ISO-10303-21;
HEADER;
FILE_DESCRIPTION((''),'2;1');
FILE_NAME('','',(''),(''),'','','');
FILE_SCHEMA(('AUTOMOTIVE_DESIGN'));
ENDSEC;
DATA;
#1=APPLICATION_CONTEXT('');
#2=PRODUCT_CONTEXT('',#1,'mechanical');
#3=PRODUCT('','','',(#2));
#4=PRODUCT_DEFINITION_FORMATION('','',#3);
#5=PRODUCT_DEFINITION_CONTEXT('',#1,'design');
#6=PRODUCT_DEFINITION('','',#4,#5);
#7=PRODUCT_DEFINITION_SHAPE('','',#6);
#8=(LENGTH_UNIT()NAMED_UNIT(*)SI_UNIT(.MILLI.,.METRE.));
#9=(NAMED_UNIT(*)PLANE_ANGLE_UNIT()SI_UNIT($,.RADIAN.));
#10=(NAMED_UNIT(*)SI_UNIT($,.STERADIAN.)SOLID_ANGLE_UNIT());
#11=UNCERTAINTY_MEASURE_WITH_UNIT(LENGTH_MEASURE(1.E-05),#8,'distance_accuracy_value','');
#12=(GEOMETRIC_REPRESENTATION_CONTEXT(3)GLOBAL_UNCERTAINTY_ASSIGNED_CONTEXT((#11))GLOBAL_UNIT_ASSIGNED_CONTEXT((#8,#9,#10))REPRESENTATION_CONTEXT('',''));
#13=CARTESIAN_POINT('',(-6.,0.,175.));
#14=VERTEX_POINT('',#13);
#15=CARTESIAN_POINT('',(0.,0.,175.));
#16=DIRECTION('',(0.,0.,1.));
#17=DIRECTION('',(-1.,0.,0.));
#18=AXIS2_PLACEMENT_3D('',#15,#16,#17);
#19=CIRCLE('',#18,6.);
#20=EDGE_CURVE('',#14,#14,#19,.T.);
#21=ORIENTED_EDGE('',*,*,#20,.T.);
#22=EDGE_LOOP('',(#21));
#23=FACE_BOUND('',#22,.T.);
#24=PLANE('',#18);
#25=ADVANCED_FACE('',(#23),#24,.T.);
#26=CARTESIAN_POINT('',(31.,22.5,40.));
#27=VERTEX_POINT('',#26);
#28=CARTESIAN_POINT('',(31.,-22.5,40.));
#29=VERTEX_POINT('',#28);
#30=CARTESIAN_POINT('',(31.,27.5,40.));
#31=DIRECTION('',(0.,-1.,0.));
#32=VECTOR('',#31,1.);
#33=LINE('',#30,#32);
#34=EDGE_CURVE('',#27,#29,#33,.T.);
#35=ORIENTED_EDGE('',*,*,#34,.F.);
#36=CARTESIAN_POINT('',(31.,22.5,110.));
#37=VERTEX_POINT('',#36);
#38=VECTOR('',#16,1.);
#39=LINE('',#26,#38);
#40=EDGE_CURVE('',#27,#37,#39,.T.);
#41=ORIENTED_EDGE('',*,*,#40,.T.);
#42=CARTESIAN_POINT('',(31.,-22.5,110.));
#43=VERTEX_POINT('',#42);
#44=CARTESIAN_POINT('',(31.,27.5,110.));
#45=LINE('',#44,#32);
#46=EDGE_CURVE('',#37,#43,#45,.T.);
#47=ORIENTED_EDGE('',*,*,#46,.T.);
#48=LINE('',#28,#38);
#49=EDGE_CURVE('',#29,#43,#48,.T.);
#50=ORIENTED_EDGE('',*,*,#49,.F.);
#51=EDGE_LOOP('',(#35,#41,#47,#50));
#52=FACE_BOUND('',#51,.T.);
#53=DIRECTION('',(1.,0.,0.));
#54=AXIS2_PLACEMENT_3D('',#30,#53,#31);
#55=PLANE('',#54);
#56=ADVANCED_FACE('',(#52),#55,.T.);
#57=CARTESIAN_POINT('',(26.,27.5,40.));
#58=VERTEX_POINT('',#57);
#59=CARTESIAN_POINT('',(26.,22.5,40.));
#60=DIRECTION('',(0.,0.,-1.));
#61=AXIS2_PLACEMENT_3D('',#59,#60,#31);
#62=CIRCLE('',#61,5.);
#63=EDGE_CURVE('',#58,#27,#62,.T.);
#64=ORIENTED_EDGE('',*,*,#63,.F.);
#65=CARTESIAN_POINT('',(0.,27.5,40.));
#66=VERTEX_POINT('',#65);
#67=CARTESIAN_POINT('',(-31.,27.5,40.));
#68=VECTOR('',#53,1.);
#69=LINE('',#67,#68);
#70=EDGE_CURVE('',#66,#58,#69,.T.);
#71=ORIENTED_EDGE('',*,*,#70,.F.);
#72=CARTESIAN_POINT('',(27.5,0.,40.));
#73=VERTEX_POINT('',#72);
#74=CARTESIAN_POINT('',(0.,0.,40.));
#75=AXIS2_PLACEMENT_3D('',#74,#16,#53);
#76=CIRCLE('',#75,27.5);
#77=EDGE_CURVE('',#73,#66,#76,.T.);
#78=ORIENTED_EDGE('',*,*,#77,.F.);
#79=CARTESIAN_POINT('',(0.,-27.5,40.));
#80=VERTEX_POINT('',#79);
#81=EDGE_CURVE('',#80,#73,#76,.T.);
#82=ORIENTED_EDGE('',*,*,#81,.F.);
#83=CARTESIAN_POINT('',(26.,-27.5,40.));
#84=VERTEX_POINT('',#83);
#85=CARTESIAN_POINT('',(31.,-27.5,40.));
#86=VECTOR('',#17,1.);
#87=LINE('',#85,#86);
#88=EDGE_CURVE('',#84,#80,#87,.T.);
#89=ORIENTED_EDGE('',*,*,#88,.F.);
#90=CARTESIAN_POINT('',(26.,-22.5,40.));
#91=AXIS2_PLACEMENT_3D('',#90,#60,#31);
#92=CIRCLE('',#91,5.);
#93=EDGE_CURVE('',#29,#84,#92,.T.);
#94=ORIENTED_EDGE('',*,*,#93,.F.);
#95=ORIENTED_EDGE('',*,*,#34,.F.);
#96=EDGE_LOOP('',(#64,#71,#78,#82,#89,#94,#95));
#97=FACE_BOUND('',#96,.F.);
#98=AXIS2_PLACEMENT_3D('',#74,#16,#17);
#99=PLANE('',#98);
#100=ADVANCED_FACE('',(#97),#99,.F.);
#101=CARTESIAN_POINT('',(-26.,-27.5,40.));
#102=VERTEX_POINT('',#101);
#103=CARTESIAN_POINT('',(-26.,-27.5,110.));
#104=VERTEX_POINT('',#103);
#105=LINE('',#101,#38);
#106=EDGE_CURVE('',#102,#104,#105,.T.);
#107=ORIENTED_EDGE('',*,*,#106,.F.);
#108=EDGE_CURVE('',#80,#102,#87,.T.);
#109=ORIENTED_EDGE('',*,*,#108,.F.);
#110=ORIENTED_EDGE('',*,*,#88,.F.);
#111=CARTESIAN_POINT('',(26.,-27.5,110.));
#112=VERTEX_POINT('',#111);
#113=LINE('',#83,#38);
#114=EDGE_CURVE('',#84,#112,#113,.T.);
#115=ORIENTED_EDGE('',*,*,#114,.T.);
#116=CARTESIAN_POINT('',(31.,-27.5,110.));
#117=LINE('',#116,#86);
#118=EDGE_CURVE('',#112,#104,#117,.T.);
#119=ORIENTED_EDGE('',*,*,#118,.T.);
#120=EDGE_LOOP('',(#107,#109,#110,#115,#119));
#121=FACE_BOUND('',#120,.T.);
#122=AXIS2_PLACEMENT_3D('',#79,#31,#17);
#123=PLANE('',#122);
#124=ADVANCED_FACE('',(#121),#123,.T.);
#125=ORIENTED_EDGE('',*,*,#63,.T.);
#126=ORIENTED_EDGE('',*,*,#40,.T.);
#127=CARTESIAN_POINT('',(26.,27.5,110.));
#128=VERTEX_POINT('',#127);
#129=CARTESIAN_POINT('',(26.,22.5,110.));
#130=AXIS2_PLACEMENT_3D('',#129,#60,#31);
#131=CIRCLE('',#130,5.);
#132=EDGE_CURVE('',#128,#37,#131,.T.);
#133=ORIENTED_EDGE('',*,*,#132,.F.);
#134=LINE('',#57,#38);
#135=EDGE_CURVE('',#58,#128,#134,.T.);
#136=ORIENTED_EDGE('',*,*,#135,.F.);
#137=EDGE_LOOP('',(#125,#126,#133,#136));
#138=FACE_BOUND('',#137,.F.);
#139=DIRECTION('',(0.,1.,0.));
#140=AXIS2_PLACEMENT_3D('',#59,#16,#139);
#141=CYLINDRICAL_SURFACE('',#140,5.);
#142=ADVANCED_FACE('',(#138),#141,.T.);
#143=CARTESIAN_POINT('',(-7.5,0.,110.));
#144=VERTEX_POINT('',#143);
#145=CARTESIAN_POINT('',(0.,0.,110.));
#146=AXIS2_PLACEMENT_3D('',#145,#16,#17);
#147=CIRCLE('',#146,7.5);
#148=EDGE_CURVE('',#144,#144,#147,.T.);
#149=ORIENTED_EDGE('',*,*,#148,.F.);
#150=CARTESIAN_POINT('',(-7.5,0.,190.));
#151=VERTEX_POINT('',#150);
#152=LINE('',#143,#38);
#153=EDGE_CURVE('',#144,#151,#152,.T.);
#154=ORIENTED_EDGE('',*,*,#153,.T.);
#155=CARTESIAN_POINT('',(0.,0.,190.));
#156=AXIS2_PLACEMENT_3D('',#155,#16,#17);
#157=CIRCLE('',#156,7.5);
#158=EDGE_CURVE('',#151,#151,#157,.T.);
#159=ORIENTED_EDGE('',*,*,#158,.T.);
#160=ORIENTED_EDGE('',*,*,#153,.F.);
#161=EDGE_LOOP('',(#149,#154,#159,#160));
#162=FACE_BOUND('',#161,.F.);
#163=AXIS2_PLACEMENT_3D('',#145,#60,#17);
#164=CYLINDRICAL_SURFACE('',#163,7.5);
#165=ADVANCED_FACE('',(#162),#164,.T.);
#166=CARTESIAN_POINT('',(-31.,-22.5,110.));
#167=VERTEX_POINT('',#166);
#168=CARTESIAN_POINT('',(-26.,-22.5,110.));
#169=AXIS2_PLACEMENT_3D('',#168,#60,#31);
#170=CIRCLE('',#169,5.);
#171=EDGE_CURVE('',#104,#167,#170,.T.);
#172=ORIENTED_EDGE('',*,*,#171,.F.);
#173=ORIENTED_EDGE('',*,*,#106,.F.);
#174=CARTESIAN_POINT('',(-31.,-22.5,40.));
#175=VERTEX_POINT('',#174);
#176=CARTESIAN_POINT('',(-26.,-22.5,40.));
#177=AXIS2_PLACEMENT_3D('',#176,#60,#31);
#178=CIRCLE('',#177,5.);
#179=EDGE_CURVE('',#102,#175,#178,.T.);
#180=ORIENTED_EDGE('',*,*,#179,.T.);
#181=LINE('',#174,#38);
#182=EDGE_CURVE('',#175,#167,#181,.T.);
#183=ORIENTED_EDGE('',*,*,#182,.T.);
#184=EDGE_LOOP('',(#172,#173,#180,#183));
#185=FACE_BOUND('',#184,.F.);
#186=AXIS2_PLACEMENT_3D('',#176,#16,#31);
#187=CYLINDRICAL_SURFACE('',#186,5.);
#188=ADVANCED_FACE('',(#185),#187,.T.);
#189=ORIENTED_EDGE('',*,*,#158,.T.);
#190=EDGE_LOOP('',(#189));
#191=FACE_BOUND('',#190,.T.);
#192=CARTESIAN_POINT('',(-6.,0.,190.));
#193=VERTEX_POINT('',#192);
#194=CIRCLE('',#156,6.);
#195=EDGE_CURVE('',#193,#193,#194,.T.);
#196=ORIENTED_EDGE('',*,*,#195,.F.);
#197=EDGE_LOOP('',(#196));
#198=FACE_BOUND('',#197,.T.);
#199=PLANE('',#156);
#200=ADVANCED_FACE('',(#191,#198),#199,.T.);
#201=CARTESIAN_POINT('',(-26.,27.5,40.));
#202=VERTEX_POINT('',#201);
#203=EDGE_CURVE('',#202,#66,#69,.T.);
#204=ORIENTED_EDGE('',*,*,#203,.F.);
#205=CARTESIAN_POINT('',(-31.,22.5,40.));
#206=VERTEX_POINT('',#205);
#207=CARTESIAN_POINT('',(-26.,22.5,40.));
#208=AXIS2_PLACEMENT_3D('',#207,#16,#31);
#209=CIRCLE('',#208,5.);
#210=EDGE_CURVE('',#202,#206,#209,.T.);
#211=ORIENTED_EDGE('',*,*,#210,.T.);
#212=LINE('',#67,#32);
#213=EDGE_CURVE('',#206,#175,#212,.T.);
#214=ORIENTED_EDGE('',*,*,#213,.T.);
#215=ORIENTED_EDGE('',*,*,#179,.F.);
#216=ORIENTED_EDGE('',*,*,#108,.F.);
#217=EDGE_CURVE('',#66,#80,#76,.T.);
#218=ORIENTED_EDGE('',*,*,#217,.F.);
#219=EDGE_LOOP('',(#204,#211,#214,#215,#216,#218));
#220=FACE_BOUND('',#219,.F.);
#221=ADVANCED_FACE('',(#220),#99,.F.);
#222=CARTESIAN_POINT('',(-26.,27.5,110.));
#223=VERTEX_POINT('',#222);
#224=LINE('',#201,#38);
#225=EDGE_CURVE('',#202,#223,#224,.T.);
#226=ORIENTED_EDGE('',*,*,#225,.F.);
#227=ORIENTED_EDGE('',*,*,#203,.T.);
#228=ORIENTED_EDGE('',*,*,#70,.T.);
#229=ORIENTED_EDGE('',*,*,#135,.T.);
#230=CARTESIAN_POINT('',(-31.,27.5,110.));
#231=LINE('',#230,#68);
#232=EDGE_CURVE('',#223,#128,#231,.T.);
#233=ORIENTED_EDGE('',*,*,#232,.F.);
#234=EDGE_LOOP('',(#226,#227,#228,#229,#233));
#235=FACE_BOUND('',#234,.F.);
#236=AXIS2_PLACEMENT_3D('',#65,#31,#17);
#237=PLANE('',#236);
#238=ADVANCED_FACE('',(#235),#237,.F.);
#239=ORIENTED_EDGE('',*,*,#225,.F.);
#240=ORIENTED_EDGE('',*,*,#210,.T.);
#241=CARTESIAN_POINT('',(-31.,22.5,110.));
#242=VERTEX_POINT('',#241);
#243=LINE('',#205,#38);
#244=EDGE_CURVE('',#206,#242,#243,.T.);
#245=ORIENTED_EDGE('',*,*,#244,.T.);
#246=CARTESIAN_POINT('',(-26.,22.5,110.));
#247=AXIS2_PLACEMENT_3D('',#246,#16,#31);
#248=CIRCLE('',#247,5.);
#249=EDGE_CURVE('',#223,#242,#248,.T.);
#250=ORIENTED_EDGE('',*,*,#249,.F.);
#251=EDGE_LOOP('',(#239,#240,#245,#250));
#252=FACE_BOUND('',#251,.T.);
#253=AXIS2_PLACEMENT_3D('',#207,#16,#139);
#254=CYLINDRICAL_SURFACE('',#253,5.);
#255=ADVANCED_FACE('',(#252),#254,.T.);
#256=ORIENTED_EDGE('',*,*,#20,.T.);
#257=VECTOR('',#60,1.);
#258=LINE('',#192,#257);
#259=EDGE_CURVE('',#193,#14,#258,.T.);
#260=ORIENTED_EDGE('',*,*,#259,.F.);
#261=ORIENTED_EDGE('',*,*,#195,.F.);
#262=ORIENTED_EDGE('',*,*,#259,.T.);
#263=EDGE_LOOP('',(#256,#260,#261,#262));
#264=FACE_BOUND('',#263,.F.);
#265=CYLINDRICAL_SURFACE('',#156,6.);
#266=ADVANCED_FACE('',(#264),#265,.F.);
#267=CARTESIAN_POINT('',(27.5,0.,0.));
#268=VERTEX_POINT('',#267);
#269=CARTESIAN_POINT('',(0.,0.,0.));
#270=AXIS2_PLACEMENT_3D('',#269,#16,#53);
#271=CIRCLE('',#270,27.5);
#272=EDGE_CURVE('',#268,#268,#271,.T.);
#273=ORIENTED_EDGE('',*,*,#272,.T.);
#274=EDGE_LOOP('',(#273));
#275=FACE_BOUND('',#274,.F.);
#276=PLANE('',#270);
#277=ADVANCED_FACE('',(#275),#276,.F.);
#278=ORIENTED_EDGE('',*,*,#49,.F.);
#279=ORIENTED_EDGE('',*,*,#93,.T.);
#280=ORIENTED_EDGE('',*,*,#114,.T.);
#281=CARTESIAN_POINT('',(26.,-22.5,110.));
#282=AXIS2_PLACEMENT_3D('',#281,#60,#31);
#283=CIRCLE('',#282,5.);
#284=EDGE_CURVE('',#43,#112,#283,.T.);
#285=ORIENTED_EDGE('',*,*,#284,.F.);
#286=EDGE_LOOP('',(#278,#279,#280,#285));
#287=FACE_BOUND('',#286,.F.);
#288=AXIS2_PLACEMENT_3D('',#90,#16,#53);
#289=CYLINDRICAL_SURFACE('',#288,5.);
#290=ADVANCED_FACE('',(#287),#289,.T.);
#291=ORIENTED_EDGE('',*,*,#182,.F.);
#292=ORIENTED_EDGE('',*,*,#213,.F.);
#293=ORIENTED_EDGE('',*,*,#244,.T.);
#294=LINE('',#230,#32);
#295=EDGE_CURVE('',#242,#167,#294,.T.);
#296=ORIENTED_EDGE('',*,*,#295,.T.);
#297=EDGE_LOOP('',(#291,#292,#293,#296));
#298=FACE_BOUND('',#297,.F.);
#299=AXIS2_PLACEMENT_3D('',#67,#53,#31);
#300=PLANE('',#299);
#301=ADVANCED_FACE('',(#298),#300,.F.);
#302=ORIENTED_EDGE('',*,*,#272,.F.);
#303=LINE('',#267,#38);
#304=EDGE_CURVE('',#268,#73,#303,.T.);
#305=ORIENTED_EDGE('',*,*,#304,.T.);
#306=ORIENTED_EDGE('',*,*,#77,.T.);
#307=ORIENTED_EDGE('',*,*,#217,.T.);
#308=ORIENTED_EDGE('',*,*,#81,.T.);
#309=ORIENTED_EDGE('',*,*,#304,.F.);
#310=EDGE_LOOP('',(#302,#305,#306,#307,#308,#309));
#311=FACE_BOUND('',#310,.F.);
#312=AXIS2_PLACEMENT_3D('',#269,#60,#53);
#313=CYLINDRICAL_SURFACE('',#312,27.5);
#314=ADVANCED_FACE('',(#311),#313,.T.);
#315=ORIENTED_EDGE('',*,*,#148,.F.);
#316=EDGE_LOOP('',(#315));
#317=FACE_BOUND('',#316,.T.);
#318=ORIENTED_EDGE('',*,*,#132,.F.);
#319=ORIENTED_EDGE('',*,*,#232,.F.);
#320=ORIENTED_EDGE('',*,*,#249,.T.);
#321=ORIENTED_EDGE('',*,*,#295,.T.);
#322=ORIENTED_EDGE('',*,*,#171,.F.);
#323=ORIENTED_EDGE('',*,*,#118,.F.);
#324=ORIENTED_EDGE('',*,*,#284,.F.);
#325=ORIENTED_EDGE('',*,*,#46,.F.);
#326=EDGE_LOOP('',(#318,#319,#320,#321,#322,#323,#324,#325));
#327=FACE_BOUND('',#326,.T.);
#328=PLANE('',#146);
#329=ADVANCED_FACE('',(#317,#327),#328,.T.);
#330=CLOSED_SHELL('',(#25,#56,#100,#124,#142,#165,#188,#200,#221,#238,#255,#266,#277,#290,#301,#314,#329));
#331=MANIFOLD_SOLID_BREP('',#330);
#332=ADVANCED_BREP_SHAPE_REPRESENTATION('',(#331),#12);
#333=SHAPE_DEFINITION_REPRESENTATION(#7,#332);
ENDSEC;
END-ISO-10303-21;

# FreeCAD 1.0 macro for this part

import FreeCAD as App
import Part
import Sketcher


def edges_at(feature, points):
    """Names of the edges that pass closest to the given points."""
    edges = feature.Shape.Edges
    near = lambda p: min(range(len(edges)), key=lambda i: edges[i].distToShape(Part.Vertex(*p))[0])
    return sorted({f"Edge{near(p) + 1}" for p in points})

doc = App.newDocument("Part")
body = doc.addObject("PartDesign::Body", "Body")

sketch1 = doc.addObject("Sketcher::SketchObject", "Sketch")
body.addObject(sketch1)
sketch1.AttachmentSupport = (doc.XY_Plane, [""])
sketch1.MapMode = "FlatFace"
sketch1.addGeometry(Part.Circle(App.Vector(0, 0, 0), App.Vector(0, 0, 1), 28), False)
sketch1.addConstraint(Sketcher.Constraint("Coincident", 0, 3, -1, 1))
sketch1.addConstraint(Sketcher.Constraint("Diameter", 0, 55.0))
pad1 = doc.addObject("PartDesign::Pad", "Pad")
body.addObject(pad1)
pad1.Profile = sketch1
pad1.Length = 40

sketch2 = doc.addObject("Sketcher::SketchObject", "Sketch001")
body.addObject(sketch2)
sketch2.AttachmentSupport = (doc.XY_Plane, [""])
sketch2.MapMode = "FlatFace"
sketch2.AttachmentOffset = App.Placement(App.Vector(0, 0, 40), App.Rotation())
sketch2.addGeometry(Part.LineSegment(App.Vector(-31, 28, 0), App.Vector(-31, -28, 0)), False)
sketch2.addGeometry(Part.LineSegment(App.Vector(-31, -28, 0), App.Vector(31, -28, 0)), False)
sketch2.addGeometry(Part.LineSegment(App.Vector(31, -28, 0), App.Vector(31, 28, 0)), False)
sketch2.addGeometry(Part.LineSegment(App.Vector(31, 28, 0), App.Vector(-31, 28, 0)), False)
sketch2.addConstraint(Sketcher.Constraint("Coincident", 0, 2, 1, 1))
sketch2.addConstraint(Sketcher.Constraint("Coincident", 1, 2, 2, 1))
sketch2.addConstraint(Sketcher.Constraint("Coincident", 2, 2, 3, 1))
sketch2.addConstraint(Sketcher.Constraint("Coincident", 3, 2, 0, 1))
sketch2.addConstraint(Sketcher.Constraint("Vertical", 0))
sketch2.addConstraint(Sketcher.Constraint("Horizontal", 1))
sketch2.addConstraint(Sketcher.Constraint("Vertical", 2))
sketch2.addConstraint(Sketcher.Constraint("Horizontal", 3))
sketch2.addConstraint(Sketcher.Constraint("Symmetric", 0, 2, 2, 2, -1, 1))
sketch2.addConstraint(Sketcher.Constraint("DistanceX", 0, 2, -1, 1, 31.0))
sketch2.addConstraint(Sketcher.Constraint("DistanceY", 0, 2, 0, 1, 55.0))
pad2 = doc.addObject("PartDesign::Pad", "Pad001")
body.addObject(pad2)
pad2.Profile = sketch2
pad2.Length = 70

sketch3 = doc.addObject("Sketcher::SketchObject", "Sketch002")
body.addObject(sketch3)
sketch3.AttachmentSupport = (doc.XY_Plane, [""])
sketch3.MapMode = "FlatFace"
sketch3.AttachmentOffset = App.Placement(App.Vector(0, 0, 110), App.Rotation())
sketch3.addGeometry(Part.Circle(App.Vector(0, 0, 0), App.Vector(0, 0, 1), 8), False)
sketch3.addConstraint(Sketcher.Constraint("Coincident", 0, 3, -1, 1))
sketch3.addConstraint(Sketcher.Constraint("Diameter", 0, 15.0))
pad3 = doc.addObject("PartDesign::Pad", "Pad002")
body.addObject(pad3)
pad3.Profile = sketch3
pad3.Length = 80

sketch4 = doc.addObject("Sketcher::SketchObject", "Sketch003")
body.addObject(sketch4)
sketch4.AttachmentSupport = (doc.XY_Plane, [""])
sketch4.MapMode = "FlatFace"
sketch4.AttachmentOffset = App.Placement(App.Vector(0, 0, 190), App.Rotation())
sketch4.addGeometry(Part.Circle(App.Vector(0, 0, 0), App.Vector(0, 0, 1), 6), False)
sketch4.addConstraint(Sketcher.Constraint("Coincident", 0, 3, -1, 1))
sketch4.addConstraint(Sketcher.Constraint("Diameter", 0, 12.0))
pocket1 = doc.addObject("PartDesign::Pocket", "Pocket")
body.addObject(pocket1)
pocket1.Profile = sketch4
pocket1.Length = 15
doc.recompute()

fillet = doc.addObject("PartDesign::Fillet", "Fillet")
body.addObject(fillet)
fillet.Base = (pocket1, edges_at(pocket1, [
    (-31, -27.5, 75),
    (31, -27.5, 75),
    (31, 27.5, 75),
    (-31, 27.5, 75),
]))
fillet.Radius = 5

doc.recompute()
